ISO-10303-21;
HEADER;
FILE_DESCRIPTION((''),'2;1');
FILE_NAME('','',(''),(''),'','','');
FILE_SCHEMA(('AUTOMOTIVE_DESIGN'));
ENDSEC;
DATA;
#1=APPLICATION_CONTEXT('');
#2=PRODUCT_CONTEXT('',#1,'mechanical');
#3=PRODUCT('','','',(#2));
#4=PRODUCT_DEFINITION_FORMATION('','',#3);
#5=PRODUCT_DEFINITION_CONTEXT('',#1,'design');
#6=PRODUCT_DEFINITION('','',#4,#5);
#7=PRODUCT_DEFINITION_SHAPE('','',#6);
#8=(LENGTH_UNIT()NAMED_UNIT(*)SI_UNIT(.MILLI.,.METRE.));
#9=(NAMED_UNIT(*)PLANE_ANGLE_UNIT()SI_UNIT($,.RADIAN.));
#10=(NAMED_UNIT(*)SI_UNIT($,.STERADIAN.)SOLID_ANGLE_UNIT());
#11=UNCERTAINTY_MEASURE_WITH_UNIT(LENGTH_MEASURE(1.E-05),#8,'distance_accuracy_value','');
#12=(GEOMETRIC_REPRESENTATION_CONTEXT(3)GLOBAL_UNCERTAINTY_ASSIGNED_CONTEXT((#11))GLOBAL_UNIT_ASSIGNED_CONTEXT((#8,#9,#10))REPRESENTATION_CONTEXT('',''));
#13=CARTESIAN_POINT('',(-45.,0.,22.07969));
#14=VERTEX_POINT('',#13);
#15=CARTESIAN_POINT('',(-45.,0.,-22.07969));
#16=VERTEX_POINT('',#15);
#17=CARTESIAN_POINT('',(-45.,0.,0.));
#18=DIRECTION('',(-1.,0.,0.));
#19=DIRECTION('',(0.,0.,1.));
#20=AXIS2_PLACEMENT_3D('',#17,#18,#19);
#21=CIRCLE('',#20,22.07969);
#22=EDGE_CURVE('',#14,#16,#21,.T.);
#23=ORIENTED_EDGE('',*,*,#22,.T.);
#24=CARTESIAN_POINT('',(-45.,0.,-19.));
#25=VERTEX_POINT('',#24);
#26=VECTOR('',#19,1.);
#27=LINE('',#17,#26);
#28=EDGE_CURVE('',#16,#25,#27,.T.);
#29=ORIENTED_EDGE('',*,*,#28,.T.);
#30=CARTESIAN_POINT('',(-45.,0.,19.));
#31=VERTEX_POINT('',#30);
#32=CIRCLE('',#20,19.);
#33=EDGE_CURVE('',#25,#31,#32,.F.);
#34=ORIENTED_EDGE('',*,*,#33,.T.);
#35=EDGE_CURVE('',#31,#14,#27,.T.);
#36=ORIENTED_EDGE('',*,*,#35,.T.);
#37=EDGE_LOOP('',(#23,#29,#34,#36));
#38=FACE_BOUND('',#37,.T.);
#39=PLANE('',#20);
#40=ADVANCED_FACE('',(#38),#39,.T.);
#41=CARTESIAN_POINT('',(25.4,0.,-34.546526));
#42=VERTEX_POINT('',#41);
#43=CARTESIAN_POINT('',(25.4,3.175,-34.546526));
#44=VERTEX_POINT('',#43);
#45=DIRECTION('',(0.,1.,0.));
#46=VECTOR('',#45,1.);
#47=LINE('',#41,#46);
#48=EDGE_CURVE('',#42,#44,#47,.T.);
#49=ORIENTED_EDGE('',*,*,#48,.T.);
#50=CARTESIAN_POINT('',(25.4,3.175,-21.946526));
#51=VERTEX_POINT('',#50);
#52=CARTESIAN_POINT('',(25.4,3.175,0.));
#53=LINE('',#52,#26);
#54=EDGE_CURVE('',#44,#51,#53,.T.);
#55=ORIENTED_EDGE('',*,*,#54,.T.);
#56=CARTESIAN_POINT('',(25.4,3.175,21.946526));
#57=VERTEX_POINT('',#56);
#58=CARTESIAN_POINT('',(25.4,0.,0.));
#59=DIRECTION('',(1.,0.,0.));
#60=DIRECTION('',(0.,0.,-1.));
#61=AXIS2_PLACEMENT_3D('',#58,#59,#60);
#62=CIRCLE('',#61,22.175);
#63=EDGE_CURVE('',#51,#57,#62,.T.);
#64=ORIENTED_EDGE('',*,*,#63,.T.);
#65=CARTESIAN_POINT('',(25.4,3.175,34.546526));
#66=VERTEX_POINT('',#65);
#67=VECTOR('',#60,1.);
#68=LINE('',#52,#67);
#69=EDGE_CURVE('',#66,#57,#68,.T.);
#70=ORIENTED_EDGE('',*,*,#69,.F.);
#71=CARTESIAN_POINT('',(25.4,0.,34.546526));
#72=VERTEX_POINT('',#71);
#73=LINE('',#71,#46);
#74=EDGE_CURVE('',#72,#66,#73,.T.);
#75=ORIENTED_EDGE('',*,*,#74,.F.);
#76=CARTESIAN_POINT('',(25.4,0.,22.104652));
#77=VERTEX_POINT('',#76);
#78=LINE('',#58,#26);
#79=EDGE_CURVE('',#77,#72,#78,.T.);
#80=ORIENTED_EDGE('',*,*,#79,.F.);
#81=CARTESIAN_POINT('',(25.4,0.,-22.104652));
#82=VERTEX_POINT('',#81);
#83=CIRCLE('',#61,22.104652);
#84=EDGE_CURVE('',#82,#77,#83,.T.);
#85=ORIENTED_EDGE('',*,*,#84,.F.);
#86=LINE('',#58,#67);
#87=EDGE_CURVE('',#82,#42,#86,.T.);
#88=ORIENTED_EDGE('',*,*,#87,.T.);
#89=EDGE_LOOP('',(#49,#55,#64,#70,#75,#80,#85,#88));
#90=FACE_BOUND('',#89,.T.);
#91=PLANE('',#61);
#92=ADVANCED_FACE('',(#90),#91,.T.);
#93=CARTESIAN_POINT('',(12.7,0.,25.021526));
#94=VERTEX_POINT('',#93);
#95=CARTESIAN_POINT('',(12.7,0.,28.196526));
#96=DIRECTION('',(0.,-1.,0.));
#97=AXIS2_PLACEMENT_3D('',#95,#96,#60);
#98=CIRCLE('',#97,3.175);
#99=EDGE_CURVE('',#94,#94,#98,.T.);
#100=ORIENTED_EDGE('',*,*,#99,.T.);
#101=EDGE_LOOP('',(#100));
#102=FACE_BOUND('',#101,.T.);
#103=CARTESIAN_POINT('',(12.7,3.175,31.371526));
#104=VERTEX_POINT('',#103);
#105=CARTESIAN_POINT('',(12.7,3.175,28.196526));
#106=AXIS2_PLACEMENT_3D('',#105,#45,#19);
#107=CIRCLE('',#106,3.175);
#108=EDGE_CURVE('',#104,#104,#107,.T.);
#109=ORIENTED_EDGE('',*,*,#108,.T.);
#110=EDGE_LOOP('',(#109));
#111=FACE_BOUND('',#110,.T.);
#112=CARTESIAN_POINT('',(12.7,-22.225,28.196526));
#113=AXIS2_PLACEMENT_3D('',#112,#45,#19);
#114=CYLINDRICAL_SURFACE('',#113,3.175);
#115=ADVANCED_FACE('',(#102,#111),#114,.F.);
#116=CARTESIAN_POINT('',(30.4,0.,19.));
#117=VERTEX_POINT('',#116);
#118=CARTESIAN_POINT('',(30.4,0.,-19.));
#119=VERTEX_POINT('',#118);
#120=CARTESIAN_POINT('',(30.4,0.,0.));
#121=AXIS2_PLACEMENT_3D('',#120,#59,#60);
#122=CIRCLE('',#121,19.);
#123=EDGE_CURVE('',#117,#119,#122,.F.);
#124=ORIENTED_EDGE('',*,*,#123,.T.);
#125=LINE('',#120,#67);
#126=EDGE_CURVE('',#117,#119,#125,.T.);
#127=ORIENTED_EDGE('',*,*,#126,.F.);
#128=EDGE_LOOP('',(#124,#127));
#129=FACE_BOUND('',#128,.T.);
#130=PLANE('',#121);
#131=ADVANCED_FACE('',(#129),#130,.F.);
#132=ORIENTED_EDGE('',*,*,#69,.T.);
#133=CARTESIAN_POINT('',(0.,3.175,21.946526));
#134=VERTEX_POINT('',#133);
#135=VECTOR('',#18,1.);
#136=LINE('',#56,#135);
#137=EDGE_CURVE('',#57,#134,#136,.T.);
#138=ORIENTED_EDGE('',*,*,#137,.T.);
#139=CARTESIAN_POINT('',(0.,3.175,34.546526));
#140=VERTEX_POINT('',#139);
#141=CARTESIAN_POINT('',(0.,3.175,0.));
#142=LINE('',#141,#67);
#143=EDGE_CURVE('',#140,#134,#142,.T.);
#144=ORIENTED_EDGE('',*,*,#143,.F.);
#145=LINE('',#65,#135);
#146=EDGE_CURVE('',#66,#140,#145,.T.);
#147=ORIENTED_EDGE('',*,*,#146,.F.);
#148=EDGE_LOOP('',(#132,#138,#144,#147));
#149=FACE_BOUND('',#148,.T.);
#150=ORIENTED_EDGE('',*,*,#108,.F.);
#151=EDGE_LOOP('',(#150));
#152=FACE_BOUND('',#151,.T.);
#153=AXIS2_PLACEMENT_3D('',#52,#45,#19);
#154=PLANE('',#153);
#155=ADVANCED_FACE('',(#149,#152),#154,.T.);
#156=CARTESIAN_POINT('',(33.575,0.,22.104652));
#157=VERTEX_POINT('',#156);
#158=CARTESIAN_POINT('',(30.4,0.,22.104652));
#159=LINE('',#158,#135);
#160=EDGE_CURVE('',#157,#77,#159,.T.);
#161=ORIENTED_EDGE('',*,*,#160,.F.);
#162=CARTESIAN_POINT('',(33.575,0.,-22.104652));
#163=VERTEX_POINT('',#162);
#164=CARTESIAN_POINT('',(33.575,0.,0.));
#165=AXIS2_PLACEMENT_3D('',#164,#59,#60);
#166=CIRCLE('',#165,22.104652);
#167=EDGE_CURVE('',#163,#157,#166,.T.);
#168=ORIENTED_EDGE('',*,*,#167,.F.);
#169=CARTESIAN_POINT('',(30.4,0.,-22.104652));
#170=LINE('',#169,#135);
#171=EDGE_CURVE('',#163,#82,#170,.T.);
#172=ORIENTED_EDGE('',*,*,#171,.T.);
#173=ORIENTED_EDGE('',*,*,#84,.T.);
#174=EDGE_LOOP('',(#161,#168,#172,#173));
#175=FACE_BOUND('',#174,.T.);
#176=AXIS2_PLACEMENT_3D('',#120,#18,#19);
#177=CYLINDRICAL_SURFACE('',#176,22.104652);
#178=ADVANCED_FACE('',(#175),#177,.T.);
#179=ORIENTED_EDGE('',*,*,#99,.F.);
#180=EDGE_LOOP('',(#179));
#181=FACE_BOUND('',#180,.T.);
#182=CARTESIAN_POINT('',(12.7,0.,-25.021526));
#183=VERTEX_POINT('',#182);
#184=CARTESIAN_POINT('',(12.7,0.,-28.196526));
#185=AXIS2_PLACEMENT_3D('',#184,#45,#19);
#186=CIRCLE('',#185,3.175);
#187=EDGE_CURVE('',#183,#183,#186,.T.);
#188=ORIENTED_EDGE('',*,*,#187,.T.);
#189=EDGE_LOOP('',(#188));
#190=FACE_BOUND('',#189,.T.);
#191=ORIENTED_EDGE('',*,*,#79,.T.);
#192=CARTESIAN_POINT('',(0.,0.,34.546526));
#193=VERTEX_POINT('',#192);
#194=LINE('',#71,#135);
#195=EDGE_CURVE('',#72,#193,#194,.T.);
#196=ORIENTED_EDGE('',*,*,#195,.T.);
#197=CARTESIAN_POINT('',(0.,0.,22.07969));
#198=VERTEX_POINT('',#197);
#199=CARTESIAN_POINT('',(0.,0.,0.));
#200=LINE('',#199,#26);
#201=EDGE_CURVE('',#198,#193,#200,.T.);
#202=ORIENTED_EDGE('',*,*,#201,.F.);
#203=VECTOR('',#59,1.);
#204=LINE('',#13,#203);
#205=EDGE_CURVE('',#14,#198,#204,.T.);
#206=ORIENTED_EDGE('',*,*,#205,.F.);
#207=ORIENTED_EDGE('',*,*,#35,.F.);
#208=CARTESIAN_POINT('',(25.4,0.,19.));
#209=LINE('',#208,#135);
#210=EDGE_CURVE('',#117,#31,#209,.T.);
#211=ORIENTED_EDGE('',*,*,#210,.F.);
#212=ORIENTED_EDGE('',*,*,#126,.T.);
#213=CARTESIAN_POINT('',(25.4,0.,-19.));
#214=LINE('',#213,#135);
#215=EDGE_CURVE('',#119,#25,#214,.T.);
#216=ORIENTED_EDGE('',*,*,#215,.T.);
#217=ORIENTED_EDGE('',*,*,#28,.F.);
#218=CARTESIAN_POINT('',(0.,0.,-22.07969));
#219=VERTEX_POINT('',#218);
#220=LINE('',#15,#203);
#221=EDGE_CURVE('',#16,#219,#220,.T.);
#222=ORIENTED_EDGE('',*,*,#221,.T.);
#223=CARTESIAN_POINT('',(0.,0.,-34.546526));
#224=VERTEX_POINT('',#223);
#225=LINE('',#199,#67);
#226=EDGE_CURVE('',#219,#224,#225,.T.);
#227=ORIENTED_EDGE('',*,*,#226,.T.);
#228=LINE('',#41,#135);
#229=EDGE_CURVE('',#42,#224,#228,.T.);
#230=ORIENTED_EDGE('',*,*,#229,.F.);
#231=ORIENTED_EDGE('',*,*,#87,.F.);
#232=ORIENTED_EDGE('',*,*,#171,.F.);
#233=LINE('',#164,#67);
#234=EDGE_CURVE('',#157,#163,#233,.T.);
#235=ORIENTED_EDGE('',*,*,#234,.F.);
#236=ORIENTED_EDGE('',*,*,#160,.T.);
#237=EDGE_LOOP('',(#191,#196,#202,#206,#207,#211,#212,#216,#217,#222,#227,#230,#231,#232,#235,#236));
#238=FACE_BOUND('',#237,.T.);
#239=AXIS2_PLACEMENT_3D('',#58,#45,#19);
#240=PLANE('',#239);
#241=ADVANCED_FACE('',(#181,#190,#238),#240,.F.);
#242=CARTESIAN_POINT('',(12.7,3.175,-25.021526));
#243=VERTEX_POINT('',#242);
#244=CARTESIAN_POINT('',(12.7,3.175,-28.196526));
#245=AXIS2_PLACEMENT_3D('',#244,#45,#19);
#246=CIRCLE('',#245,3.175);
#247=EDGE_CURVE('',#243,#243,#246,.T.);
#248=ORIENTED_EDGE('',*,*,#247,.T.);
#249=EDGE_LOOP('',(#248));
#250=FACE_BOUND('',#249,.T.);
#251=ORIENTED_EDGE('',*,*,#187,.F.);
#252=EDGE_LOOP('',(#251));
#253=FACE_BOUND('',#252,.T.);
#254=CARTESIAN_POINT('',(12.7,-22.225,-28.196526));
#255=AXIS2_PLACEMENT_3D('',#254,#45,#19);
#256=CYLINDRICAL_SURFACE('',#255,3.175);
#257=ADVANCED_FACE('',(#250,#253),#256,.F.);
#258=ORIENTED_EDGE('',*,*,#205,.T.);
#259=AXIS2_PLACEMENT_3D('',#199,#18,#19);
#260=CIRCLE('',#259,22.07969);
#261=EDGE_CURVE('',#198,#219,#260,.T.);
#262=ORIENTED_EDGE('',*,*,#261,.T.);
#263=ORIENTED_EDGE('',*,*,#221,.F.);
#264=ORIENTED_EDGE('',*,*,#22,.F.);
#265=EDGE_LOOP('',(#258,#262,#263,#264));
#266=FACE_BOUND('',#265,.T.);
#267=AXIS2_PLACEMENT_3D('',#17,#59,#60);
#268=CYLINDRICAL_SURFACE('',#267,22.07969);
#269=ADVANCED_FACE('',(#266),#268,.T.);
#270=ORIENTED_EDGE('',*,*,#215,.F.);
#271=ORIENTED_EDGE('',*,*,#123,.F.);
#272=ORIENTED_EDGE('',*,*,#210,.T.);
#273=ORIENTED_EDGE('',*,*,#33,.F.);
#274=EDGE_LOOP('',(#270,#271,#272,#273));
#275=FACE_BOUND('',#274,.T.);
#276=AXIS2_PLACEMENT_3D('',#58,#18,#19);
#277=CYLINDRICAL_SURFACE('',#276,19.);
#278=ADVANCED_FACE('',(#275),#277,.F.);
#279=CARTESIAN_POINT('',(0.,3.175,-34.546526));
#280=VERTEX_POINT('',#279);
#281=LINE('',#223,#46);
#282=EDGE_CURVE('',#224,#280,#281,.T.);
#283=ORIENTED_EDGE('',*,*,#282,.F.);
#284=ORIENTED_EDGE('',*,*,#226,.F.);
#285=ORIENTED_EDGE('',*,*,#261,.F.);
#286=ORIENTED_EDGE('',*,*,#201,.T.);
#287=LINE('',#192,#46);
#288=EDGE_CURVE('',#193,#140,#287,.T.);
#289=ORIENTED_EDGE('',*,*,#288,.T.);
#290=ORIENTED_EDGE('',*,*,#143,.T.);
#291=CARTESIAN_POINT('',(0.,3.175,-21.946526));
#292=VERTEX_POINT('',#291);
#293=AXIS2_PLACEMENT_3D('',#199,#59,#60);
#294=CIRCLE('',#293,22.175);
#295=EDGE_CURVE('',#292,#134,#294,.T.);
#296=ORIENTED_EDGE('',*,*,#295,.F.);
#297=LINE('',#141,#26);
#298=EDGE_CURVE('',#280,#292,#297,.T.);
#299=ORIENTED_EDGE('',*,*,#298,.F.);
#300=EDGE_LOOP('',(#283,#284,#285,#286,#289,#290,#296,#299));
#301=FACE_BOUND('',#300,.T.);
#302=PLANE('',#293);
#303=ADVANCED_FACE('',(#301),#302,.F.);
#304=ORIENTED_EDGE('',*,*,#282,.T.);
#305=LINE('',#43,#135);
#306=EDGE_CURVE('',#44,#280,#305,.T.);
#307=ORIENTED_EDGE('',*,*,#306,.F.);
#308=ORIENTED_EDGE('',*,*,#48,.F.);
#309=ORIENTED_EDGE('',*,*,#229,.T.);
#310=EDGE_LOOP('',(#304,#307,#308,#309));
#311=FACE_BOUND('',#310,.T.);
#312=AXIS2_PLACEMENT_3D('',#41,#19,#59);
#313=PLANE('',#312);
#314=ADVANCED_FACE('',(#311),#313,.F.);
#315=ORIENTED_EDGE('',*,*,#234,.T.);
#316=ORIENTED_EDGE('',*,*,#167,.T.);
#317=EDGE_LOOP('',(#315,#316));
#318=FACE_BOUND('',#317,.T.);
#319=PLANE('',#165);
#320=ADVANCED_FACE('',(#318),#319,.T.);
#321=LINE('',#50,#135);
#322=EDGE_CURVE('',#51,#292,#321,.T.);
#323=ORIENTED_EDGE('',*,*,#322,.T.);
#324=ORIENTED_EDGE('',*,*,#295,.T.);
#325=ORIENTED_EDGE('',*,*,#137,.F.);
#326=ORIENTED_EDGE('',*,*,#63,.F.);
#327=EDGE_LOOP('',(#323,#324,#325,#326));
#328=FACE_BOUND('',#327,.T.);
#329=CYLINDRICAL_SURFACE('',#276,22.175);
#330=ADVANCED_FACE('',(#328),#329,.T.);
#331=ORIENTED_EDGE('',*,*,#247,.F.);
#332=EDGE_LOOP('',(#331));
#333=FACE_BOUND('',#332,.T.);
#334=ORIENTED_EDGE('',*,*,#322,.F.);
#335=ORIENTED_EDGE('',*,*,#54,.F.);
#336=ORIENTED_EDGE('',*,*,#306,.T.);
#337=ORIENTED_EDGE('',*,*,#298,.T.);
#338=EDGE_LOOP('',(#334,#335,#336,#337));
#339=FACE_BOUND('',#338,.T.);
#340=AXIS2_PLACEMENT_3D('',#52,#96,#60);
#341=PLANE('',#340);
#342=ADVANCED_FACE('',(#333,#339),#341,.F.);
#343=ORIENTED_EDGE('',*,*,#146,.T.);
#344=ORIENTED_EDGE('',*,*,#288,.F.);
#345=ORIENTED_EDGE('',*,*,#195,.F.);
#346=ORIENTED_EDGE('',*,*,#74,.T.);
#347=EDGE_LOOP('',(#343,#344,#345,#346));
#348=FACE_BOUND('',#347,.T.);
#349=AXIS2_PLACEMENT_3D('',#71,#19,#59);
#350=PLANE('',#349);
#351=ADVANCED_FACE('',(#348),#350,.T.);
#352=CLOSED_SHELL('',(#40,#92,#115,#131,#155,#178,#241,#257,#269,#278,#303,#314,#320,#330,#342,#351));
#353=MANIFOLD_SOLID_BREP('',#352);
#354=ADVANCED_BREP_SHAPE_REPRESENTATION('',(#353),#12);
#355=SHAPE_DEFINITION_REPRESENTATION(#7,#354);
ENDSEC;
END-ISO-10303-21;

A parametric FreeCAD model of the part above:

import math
import FreeCAD as App
import Part
import Sketcher

V = App.Vector
Q = App.Units.Quantity

doc = App.newDocument("Part")
body = doc.addObject("PartDesign::Body", "Body")

# Sketch on YZ plane
sketch1 = body.newObject("Sketcher::SketchObject", "Sketch")
sketch1.AttachmentSupport = (doc.getObject("YZ_Plane"), [""])
sketch1.MapMode = "FlatFace"
sketch1.addGeometry([
    Part.LineSegment(V(0, -19, 0), V(0, -34.546526, 0)),  # 0
    Part.LineSegment(V(0, -34.546526, 0), V(3.175, -34.546526, 0)),  # 1
    Part.LineSegment(V(3.175, -34.546526, 0), V(3.175, -21.946526, 0)),  # 2
    Part.ArcOfCircle(Part.Circle(V(0, 0, 0), V(0, 0, 1), 22.175), math.radians(-81.768142), math.radians(81.768142)),  # 3
    Part.LineSegment(V(3.175, 21.946526, 0), V(3.175, 34.546526, 0)),  # 4
    Part.LineSegment(V(3.175, 34.546526, 0), V(0, 34.546526, 0)),  # 5
    Part.LineSegment(V(0, 34.546526, 0), V(0, 19, 0)),  # 6
    Part.ArcOfCircle(Part.Circle(V(0, 0, 0), V(0, 0, 1), 19), math.radians(-90), math.radians(90)),  # 7
], False)
sketch1.addConstraint([
    Sketcher.Constraint("Coincident", 0, 2, 1, 1),
    Sketcher.Constraint("Coincident", 1, 2, 2, 1),
    Sketcher.Constraint("Coincident", 2, 2, 3, 1),
    Sketcher.Constraint("Coincident", 3, 2, 4, 1),
    Sketcher.Constraint("Coincident", 4, 2, 5, 1),
    Sketcher.Constraint("Coincident", 5, 2, 6, 1),
    Sketcher.Constraint("Coincident", 6, 2, 7, 2),
    Sketcher.Constraint("Coincident", 7, 1, 0, 1),
    Sketcher.Constraint("Vertical", 0),
    Sketcher.Constraint("Horizontal", 1),
    Sketcher.Constraint("Vertical", 2),
    Sketcher.Constraint("Vertical", 4),
    Sketcher.Constraint("Horizontal", 5),
    Sketcher.Constraint("Vertical", 6),
    Sketcher.Constraint("Coincident", 3, 3, -1, 1),
    Sketcher.Constraint("Coincident", 7, 3, -1, 1),
    Sketcher.Constraint("Symmetric", 0, 2, 5, 2, -1, 1),
    Sketcher.Constraint("PointOnObject", 0, 2, -2),
    Sketcher.Constraint("Vertical", 2, 2, 3, 2),
    Sketcher.Constraint("Radius", 7, Q("19 mm")),
    Sketcher.Constraint("DistanceY", 2, 1, 2, 2, Q("12.6 mm")),
    Sketcher.Constraint("Radius", 3, Q("22.175 mm")),
    Sketcher.Constraint("DistanceX", 1, 1, 1, 2, Q("3.175 mm")),
])
pad1 = body.newObject("PartDesign::Pad", "Pad")
pad1.Profile = sketch1
pad1.Length = 25.4

# Sketch on XZ plane
sketch2 = body.newObject("Sketcher::SketchObject", "Sketch001")
sketch2.AttachmentSupport = (doc.getObject("XZ_Plane"), [""])
sketch2.MapMode = "FlatFace"
sketch2.AttachmentOffset = App.Placement(V(0, 0, -3.175), App.Rotation())
sketch2.addGeometry(Part.Circle(V(12.7, 28.196526, 0), V(0, 0, 1), 3.175), False)
sketch2.addConstraint([
    Sketcher.Constraint("Diameter", 0, Q("6.35 mm")),
    Sketcher.Constraint("DistanceX", -1, 1, 0, 3, Q("12.7 mm")),
    Sketcher.Constraint("DistanceY", -1, 1, 0, 3, Q("28.196526 mm")),
])
pocket1 = body.newObject("PartDesign::Pocket", "Pocket")
pocket1.Profile = sketch2
pocket1.Length = 25.4
pocket1.Reversed = True

# Sketch on XZ plane
sketch3 = body.newObject("Sketcher::SketchObject", "Sketch002")
sketch3.AttachmentSupport = (doc.getObject("XZ_Plane"), [""])
sketch3.MapMode = "FlatFace"
sketch3.AttachmentOffset = App.Placement(V(0, 0, -3.175), App.Rotation())
sketch3.addGeometry(Part.Circle(V(12.7, -28.196526, 0), V(0, 0, 1), 3.175), False)
sketch3.addConstraint([
    Sketcher.Constraint("Diameter", 0, Q("6.35 mm")),
    Sketcher.Constraint("DistanceX", -1, 1, 0, 3, Q("12.7 mm")),
    Sketcher.Constraint("DistanceY", 0, 3, -1, 1, Q("28.196526 mm")),
])
pocket2 = body.newObject("PartDesign::Pocket", "Pocket001")
pocket2.Profile = sketch3
pocket2.Length = 25.4
pocket2.Reversed = True

# Sketch on YZ plane
sketch4 = body.newObject("Sketcher::SketchObject", "Sketch003")
sketch4.AttachmentSupport = (doc.getObject("YZ_Plane"), [""])
sketch4.MapMode = "FlatFace"
sketch4.AttachmentOffset = App.Placement(V(0, 0, 25.4), App.Rotation())
sketch4.addGeometry([
    Part.LineSegment(V(0, 22.104652, 0), V(0, 19, 0)),
    Part.ArcOfCircle(Part.Circle(V(0, 0, 0), V(0, 0, 1), 19), math.radians(-90), math.radians(90)),
    Part.LineSegment(V(0, -19, 0), V(0, -22.104652, 0)),
    Part.ArcOfCircle(Part.Circle(V(0, 0, 0), V(0, 0, 1), 22.104652), math.radians(-90), math.radians(90)),
], False)
sketch4.addConstraint([
    Sketcher.Constraint("Coincident", 0, 2, 1, 2),
    Sketcher.Constraint("Coincident", 1, 1, 2, 1),
    Sketcher.Constraint("Coincident", 2, 2, 3, 1),
    Sketcher.Constraint("Coincident", 3, 2, 0, 1),
    Sketcher.Constraint("Vertical", 0),
    Sketcher.Constraint("Vertical", 2),
    Sketcher.Constraint("Coincident", 1, 3, -1, 1),
    Sketcher.Constraint("Coincident", 3, 3, -1, 1),
    Sketcher.Constraint("PointOnObject", 0, 2, -2),
    Sketcher.Constraint("PointOnObject", 1, 1, -2),
    Sketcher.Constraint("Radius", 1, Q("19 mm")),
    Sketcher.Constraint("Radius", 3, Q("22.104652 mm")),
])
pad2 = body.newObject("PartDesign::Pad", "Pad001")
pad2.Profile = sketch4
pad2.Length = 5

# Sketch on YZ plane
sketch5 = body.newObject("Sketcher::SketchObject", "Sketch004")
sketch5.AttachmentSupport = (doc.getObject("YZ_Plane"), [""])
sketch5.MapMode = "FlatFace"
sketch5.AttachmentOffset = App.Placement(V(0, 0, 30.4), App.Rotation())
sketch5.addGeometry([
    Part.ArcOfCircle(Part.Circle(V(0, 0, 0), V(0, 0, 1), 22.104652), math.radians(-90), math.radians(90)),
    Part.LineSegment(V(0, 22.104652, 0), V(0, -22.104652, 0)),
], False)
sketch5.addConstraint([
    Sketcher.Constraint("Coincident", 0, 1, 1, 2),
    Sketcher.Constraint("Coincident", 1, 1, 0, 2),
    Sketcher.Constraint("Vertical", 1),
    Sketcher.Constraint("Coincident", 0, 3, -1, 1),
    Sketcher.Constraint("PointOnObject", 0, 1, -2),
    Sketcher.Constraint("Radius", 0, Q("22.104652 mm")),
])
pad3 = body.newObject("PartDesign::Pad", "Pad002")
pad3.Profile = sketch5
pad3.Length = 3.175

# Sketch on YZ plane
sketch6 = body.newObject("Sketcher::SketchObject", "Sketch005")
sketch6.AttachmentSupport = (doc.getObject("YZ_Plane"), [""])
sketch6.MapMode = "FlatFace"
sketch6.addGeometry([
    Part.ArcOfCircle(Part.Circle(V(0, 0, 0), V(0, 0, 1), 19), math.radians(-90), math.radians(90)),
    Part.LineSegment(V(0, 19, 0), V(0, 22.07969, 0)),
    Part.ArcOfCircle(Part.Circle(V(0, 0, 0), V(0, 0, 1), 22.07969), math.radians(-90), math.radians(90)),
    Part.LineSegment(V(0, -22.07969, 0), V(0, -19, 0)),
], False)
sketch6.addConstraint([
    Sketcher.Constraint("Coincident", 0, 2, 1, 1),
    Sketcher.Constraint("Coincident", 1, 2, 2, 2),
    Sketcher.Constraint("Coincident", 2, 1, 3, 1),
    Sketcher.Constraint("Coincident", 3, 2, 0, 1),
    Sketcher.Constraint("Vertical", 1),
    Sketcher.Constraint("Vertical", 3),
    Sketcher.Constraint("Coincident", 0, 3, -1, 1),
    Sketcher.Constraint("Coincident", 2, 3, -1, 1),
    Sketcher.Constraint("PointOnObject", 0, 2, -2),
    Sketcher.Constraint("PointOnObject", 2, 1, -2),
    Sketcher.Constraint("Radius", 0, Q("19 mm")),
    Sketcher.Constraint("Radius", 2, Q("22.07969 mm")),
])
pad4 = body.newObject("PartDesign::Pad", "Pad003")
pad4.Profile = sketch6
pad4.Length = 45
pad4.Reversed = True

doc.recompute()
